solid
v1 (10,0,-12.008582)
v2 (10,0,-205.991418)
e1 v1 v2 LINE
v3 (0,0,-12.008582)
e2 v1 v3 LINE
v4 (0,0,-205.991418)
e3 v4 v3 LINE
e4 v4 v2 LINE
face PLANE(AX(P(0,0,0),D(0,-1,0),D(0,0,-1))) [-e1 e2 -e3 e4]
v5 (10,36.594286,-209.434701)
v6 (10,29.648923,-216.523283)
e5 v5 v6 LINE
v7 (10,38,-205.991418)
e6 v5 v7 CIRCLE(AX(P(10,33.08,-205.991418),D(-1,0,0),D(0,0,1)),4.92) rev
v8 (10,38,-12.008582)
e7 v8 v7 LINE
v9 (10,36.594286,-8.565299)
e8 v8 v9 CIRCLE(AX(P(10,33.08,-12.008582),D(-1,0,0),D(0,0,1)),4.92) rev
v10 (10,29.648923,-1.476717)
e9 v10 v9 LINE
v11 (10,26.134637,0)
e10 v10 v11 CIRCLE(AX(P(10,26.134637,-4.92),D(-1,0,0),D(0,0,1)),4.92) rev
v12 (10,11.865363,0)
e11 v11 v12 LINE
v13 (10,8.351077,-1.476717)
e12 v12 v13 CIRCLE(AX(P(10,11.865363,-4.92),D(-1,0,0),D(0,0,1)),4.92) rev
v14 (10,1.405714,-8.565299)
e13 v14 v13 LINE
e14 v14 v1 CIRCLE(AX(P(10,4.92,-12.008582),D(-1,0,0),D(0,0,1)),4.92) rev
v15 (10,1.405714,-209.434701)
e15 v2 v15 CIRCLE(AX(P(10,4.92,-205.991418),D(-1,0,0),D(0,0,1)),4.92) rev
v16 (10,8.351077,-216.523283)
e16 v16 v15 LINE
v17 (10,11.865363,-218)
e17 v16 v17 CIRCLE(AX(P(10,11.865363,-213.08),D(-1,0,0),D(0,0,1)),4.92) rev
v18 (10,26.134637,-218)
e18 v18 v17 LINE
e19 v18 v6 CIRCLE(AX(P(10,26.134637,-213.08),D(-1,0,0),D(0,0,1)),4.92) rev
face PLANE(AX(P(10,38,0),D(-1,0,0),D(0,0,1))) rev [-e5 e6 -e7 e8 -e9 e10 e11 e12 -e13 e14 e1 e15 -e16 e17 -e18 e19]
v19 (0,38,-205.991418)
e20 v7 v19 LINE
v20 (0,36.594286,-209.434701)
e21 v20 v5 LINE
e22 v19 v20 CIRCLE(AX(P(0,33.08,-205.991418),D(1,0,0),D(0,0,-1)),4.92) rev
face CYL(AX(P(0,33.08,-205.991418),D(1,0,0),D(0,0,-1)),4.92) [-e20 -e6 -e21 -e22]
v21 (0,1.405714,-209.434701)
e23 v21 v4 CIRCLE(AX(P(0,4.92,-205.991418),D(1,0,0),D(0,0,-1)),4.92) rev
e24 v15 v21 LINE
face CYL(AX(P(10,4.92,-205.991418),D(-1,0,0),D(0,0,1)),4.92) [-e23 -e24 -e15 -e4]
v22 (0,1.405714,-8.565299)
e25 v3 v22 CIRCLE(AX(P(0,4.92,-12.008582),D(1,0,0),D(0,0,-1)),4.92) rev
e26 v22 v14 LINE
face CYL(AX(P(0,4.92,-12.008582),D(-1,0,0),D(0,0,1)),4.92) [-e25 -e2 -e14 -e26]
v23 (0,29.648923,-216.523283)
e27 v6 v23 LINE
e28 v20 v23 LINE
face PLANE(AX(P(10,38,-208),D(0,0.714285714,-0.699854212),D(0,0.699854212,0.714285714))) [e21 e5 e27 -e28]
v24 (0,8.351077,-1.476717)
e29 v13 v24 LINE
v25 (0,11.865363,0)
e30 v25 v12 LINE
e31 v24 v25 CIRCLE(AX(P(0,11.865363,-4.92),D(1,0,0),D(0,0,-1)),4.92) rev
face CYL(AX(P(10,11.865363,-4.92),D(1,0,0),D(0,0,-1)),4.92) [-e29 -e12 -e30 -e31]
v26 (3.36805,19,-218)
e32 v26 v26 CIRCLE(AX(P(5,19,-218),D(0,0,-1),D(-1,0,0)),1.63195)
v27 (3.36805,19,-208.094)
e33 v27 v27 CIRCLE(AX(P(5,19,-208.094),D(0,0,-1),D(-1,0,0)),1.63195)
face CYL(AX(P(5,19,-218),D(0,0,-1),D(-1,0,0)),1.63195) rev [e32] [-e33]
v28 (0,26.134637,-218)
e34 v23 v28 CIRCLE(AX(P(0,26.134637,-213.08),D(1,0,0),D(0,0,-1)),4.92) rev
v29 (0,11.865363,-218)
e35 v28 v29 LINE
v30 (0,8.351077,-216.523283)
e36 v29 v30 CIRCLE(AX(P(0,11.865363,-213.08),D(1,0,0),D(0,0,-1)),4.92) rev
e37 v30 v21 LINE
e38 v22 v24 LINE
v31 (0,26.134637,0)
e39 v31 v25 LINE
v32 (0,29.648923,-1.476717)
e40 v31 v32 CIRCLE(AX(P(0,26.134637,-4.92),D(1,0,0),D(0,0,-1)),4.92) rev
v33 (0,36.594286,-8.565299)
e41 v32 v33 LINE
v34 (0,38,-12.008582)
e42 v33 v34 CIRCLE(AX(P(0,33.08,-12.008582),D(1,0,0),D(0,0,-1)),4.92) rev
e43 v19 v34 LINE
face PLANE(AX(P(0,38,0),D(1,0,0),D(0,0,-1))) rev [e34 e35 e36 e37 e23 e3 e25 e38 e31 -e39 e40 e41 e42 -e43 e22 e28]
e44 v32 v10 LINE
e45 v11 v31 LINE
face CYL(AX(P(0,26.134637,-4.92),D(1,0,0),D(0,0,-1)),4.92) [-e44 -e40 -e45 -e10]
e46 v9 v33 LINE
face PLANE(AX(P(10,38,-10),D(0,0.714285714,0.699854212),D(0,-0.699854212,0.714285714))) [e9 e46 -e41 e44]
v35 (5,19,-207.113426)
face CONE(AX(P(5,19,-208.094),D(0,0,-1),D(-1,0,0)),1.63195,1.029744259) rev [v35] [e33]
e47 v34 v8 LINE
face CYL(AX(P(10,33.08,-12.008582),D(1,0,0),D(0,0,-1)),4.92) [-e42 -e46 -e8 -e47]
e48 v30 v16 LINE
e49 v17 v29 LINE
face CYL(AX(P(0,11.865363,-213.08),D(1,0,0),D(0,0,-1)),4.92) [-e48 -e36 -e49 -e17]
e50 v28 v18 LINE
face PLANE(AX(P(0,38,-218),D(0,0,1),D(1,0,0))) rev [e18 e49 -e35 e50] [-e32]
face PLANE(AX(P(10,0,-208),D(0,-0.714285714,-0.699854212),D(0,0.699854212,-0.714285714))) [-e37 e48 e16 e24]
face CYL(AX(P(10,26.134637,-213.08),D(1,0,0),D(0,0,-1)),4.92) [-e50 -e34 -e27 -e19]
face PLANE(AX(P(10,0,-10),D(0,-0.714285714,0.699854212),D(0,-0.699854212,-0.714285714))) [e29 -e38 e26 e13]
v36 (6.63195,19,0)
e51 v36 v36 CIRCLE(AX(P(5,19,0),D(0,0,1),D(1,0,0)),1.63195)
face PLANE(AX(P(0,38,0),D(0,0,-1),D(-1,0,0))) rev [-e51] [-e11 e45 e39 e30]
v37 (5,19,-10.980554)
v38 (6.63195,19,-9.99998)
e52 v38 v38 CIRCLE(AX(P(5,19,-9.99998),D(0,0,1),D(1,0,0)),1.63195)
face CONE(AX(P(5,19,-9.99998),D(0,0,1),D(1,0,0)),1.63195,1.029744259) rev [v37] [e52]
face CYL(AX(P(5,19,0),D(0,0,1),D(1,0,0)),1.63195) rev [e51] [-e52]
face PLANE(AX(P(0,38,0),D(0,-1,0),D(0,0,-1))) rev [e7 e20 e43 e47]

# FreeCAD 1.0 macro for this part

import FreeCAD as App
import Part
import Sketcher

V = App.Vector
Q = App.Units.Quantity


def edges_at(feature, points):
    """Names of the edges that pass closest to the given points."""
    edges = feature.Shape.Edges
    near = lambda p: min(range(len(edges)), key=lambda i: edges[i].distToShape(Part.Vertex(*p))[0])
    return sorted({f"Edge{near(p) + 1}" for p in points})

doc = App.newDocument("Part")
body = doc.addObject("PartDesign::Body", "Body")

# Sketch on XZ plane
sketch1 = body.newObject("Sketcher::SketchObject", "Sketch")
sketch1.AttachmentSupport = (doc.getObject("XZ_Plane"), [""])
sketch1.MapMode = "FlatFace"
sketch1.addGeometry([
    Part.LineSegment(V(0, -218, 0), V(0, 0, 0)),
    Part.LineSegment(V(0, 0, 0), V(10, 0, 0)),
    Part.LineSegment(V(10, 0, 0), V(10, -218, 0)),
    Part.LineSegment(V(10, -218, 0), V(0, -218, 0)),
], False)
sketch1.addConstraint([
    Sketcher.Constraint("Coincident", 0, 2, 1, 1),
    Sketcher.Constraint("Coincident", 1, 2, 2, 1),
    Sketcher.Constraint("Coincident", 2, 2, 3, 1),
    Sketcher.Constraint("Coincident", 3, 2, 0, 1),
    Sketcher.Constraint("Vertical", 0),
    Sketcher.Constraint("Horizontal", 1),
    Sketcher.Constraint("Vertical", 2),
    Sketcher.Constraint("Horizontal", 3),
    Sketcher.Constraint("Coincident", 0, 2, -1, 1),
    Sketcher.Constraint("DistanceX", 1, 1, 1, 2, Q("10 mm")),
    Sketcher.Constraint("DistanceY", 0, 1, 0, 2, Q("218 mm")),
])
pad1 = body.newObject("PartDesign::Pad", "Pad")
pad1.Profile = sketch1
pad1.Length = 38
pad1.Reversed = True

# Sketch on YZ plane
sketch2 = body.newObject("Sketcher::SketchObject", "Sketch001")
sketch2.AttachmentSupport = (doc.getObject("YZ_Plane"), [""])
sketch2.MapMode = "FlatFace"
sketch2.addGeometry([
    Part.LineSegment(V(38, -218, 0), V(38, -208, 0)),  # 0
    Part.LineSegment(V(38, -208, 0), V(28, -218, 0)),  # 1
    Part.LineSegment(V(28, -218, 0), V(38, -218, 0)),  # 2
    Part.LineSegment(V(0, -218, 0), V(10, -218, 0)),  # 3
    Part.LineSegment(V(10, -218, 0), V(0, -208, 0)),  # 4
    Part.LineSegment(V(0, -208, 0), V(0, -218, 0)),  # 5
    Part.LineSegment(V(0, 0, 0), V(0, -10, 0)),  # 6
    Part.LineSegment(V(0, -10, 0), V(10, 0, 0)),  # 7
    Part.LineSegment(V(10, 0, 0), V(0, 0, 0)),  # 8
    Part.LineSegment(V(38, 0, 0), V(28, 0, 0)),  # 9
    Part.LineSegment(V(28, 0, 0), V(38, -10, 0)),  # 10
    Part.LineSegment(V(38, -10, 0), V(38, 0, 0)),  # 11
], False)
sketch2.addConstraint([
    Sketcher.Constraint("Coincident", 0, 2, 1, 1),
    Sketcher.Constraint("Coincident", 1, 2, 2, 1),
    Sketcher.Constraint("Coincident", 2, 2, 0, 1),
    Sketcher.Constraint("Coincident", 3, 2, 4, 1),
    Sketcher.Constraint("Coincident", 4, 2, 5, 1),
    Sketcher.Constraint("Coincident", 5, 2, 3, 1),
    Sketcher.Constraint("Coincident", 6, 2, 7, 1),
    Sketcher.Constraint("Coincident", 7, 2, 8, 1),
    Sketcher.Constraint("Coincident", 8, 2, 6, 1),
    Sketcher.Constraint("Coincident", 9, 2, 10, 1),
    Sketcher.Constraint("Coincident", 10, 2, 11, 1),
    Sketcher.Constraint("Coincident", 11, 2, 9, 1),
    Sketcher.Constraint("Vertical", 0),
    Sketcher.Constraint("Horizontal", 2),
    Sketcher.Constraint("Horizontal", 3),
    Sketcher.Constraint("Vertical", 5),
    Sketcher.Constraint("Vertical", 6),
    Sketcher.Constraint("Horizontal", 8),
    Sketcher.Constraint("Horizontal", 9),
    Sketcher.Constraint("Vertical", 11),
    Sketcher.Constraint("Coincident", 8, 2, -1, 1),
    Sketcher.Constraint("PointOnObject", 4, 2, -2),
    Sketcher.Constraint("PointOnObject", 9, 2, -1),
    Sketcher.Constraint("Parallel", 1, 7),
    Sketcher.Constraint("Parallel", 4, 10),
    Sketcher.Constraint("Horizontal", 2, 2, 3, 2),
    Sketcher.Constraint("Horizontal", 0, 2, 4, 2),
    Sketcher.Constraint("Horizontal", 6, 2, 10, 2),
    Sketcher.Constraint("Vertical", 3, 2, 7, 2),
    Sketcher.Constraint("Vertical", 1, 2, 9, 2),
    Sketcher.Constraint("Vertical", 2, 2, 10, 2),
    Sketcher.Constraint("DistanceY", 0, 1, 0, 2, Q("10 mm")),
    Sketcher.Constraint("Distance", 1, Q("14 mm")),
    Sketcher.Constraint("DistanceX", -1, 1, 0, 2, Q("38 mm")),
    Sketcher.Constraint("DistanceY", 0, 2, -1, 1, Q("208 mm")),
])
pocket1 = body.newObject("PartDesign::Pocket", "Pocket")
pocket1.Profile = sketch2
pocket1.Type = "ThroughAll"
pocket1.Reversed = True
doc.recompute()

fillet = body.newObject("PartDesign::Fillet", "Fillet")
fillet.Base = (pocket1, edges_at(pocket1, [
    (5, 28.202, 0),
    (5, 38, -10),
    (5, 9.798, 0),
    (5, 0, -10),
    (5, 9.798, -218),
    (5, 0, -208),
    (5, 28.202, -218),
    (5, 38, -208),
]))
fillet.Radius = 4.92

# Sketch on XY plane
sketch3 = body.newObject("Sketcher::SketchObject", "Sketch002")
sketch3.AttachmentSupport = (doc.getObject("XY_Plane"), [""])
sketch3.MapMode = "FlatFace"
sketch3.addGeometry(Part.Circle(V(5, 19, 0), V(0, 0, 1), 1.6), False)
sketch3.addConstraint([
    Sketcher.Constraint("DistanceX", -1, 1, 0, 3, Q("5 mm")),
    Sketcher.Constraint("DistanceY", -1, 1, 0, 3, Q("19 mm")),
    Sketcher.Constraint("Diameter", 0, Q("3.2639 mm")),
])
doc.recompute()
hole = body.newObject("PartDesign::Hole", "Hole")
hole.Profile = sketch3
hole.ThreadType = "None"
hole.Diameter = 3.2639
hole.DepthType = "Dimension"
hole.Depth = 9.99998
hole.DrillPoint = "Angled"
hole.DrillPointAngle = 118

# Sketch on XY plane
sketch4 = body.newObject("Sketcher::SketchObject", "Sketch003")
sketch4.AttachmentSupport = (doc.getObject("XY_Plane"), [""])
sketch4.MapMode = "FlatFace"
sketch4.AttachmentOffset = App.Placement(V(0, 0, -218), App.Rotation())
sketch4.addGeometry(Part.Circle(V(5, 19, 0), V(0, 0, 1), 1.6), False)
sketch4.addConstraint([
    Sketcher.Constraint("DistanceX", -1, 1, 0, 3, Q("5 mm")),
    Sketcher.Constraint("DistanceY", -1, 1, 0, 3, Q("19 mm")),
    Sketcher.Constraint("Diameter", 0, Q("3.2639 mm")),
])
doc.recompute()
hole2 = body.newObject("PartDesign::Hole", "Hole001")
hole2.Profile = sketch4
hole2.ThreadType = "None"
hole2.Diameter = 3.2639
hole2.DepthType = "Dimension"
hole2.Depth = 9.906
hole2.DrillPoint = "Angled"
hole2.DrillPointAngle = 118
hole2.Reversed = True

doc.recompute()
